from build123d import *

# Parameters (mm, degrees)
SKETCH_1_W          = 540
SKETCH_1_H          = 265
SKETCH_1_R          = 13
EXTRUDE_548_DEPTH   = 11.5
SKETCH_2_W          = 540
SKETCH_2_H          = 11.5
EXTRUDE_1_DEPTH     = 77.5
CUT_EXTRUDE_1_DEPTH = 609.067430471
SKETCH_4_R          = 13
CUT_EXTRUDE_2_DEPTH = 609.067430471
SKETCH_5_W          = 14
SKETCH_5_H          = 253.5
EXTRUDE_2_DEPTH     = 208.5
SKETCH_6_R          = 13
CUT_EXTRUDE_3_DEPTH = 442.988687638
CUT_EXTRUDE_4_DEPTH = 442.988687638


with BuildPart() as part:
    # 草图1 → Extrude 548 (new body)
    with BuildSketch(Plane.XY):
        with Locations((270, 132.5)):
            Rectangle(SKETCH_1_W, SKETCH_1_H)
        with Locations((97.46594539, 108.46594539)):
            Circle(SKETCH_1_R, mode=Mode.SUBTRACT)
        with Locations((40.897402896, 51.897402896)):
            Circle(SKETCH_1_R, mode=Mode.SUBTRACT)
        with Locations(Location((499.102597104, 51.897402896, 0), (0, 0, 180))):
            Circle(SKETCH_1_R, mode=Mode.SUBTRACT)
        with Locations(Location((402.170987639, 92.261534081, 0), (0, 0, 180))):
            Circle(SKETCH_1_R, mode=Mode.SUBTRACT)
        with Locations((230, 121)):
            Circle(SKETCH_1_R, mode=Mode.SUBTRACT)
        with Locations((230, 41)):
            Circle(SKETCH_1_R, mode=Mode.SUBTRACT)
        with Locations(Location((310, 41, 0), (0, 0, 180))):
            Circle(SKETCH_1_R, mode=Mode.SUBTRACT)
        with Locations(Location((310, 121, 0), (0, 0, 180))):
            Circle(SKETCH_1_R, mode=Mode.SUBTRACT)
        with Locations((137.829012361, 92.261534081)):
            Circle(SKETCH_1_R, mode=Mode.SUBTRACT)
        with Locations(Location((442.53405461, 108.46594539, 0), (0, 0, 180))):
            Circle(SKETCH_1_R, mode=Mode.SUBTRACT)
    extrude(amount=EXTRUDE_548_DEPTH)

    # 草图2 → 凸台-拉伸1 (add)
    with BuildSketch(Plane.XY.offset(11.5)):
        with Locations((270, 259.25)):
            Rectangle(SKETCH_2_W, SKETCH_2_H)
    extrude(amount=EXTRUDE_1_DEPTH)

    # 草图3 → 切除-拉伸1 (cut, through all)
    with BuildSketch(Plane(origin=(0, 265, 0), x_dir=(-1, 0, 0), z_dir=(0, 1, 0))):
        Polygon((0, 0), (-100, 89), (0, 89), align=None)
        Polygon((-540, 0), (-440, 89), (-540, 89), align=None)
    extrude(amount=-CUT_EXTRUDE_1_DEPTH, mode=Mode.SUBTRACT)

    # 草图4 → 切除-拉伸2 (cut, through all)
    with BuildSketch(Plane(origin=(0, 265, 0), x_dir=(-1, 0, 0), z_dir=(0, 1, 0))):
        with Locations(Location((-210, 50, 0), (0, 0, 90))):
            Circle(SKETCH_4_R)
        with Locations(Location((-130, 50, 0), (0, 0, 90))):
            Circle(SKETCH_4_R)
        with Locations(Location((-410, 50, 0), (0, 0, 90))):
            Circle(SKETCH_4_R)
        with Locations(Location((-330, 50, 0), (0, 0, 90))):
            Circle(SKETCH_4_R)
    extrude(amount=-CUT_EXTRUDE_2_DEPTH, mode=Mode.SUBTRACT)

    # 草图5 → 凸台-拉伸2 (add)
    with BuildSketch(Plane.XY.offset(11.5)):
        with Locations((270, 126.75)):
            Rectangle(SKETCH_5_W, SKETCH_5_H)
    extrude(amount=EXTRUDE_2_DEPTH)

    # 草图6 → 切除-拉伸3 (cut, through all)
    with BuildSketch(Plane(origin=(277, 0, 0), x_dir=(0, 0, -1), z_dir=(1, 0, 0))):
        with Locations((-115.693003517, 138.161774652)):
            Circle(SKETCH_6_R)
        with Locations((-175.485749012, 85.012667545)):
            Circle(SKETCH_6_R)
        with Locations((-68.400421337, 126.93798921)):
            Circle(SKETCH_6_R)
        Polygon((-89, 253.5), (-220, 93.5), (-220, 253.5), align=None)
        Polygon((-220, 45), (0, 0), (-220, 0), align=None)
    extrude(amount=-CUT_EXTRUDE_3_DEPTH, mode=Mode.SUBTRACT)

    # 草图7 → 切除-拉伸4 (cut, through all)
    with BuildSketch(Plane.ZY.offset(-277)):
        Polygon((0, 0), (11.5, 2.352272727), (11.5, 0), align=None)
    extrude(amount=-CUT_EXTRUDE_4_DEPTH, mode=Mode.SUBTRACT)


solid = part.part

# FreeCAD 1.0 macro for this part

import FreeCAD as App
import Part
import Sketcher
from FreeCAD import Vector

doc = App.newDocument("Part")
body = doc.addObject("PartDesign::Body", "Body")

# Sketch on XY plane
sketch1 = body.newObject("Sketcher::SketchObject", "Sketch")
sketch1.AttachmentSupport = (doc.getObject("XY_Plane"), [""])
sketch1.MapMode = "FlatFace"
sketch1.addGeometry(Part.LineSegment(Vector(0, 265, 0), Vector(0, 0, 0)), False)
sketch1.addGeometry(Part.LineSegment(Vector(0, 0, 0), Vector(540, 0, 0)), False)
sketch1.addGeometry(Part.LineSegment(Vector(540, 0, 0), Vector(540, 265, 0)), False)
sketch1.addGeometry(Part.LineSegment(Vector(540, 265, 0), Vector(0, 265, 0)), False)
sketch1.addGeometry(Part.Circle(Vector(40.897403, 51.897403, 0), Vector(0, 0, 1), 13), False)
sketch1.addGeometry(Part.Circle(Vector(230, 41, 0), Vector(0, 0, 1), 13), False)
sketch1.addGeometry(Part.Circle(Vector(310, 41, 0), Vector(0, 0, 1), 13), False)
sketch1.addGeometry(Part.Circle(Vector(499.102597, 51.897403, 0), Vector(0, 0, 1), 13), False)
sketch1.addGeometry(Part.Circle(Vector(137.829012, 92.261534, 0), Vector(0, 0, 1), 13), False)
sketch1.addGeometry(Part.Circle(Vector(97.465945, 108.465945, 0), Vector(0, 0, 1), 13), False)
sketch1.addGeometry(Part.Circle(Vector(230, 121, 0), Vector(0, 0, 1), 13), False)
sketch1.addGeometry(Part.Circle(Vector(402.170988, 92.261534, 0), Vector(0, 0, 1), 13), False)
sketch1.addGeometry(Part.Circle(Vector(310, 121, 0), Vector(0, 0, 1), 13), False)
sketch1.addGeometry(Part.Circle(Vector(442.534055, 108.465945, 0), Vector(0, 0, 1), 13), False)
sketch1.addConstraint(Sketcher.Constraint("Coincident", 0, 2, 1, 1))
sketch1.addConstraint(Sketcher.Constraint("Coincident", 1, 2, 2, 1))
sketch1.addConstraint(Sketcher.Constraint("Coincident", 2, 2, 3, 1))
sketch1.addConstraint(Sketcher.Constraint("Coincident", 3, 2, 0, 1))
sketch1.addConstraint(Sketcher.Constraint("Vertical", 0))
sketch1.addConstraint(Sketcher.Constraint("Horizontal", 1))
sketch1.addConstraint(Sketcher.Constraint("Vertical", 2))
sketch1.addConstraint(Sketcher.Constraint("Horizontal", 3))
sketch1.addConstraint(Sketcher.Constraint("Coincident", 0, 2, -1, 1))
sketch1.addConstraint(Sketcher.Constraint("Equal", 4, 5))
sketch1.addConstraint(Sketcher.Constraint("Equal", 5, 6))
sketch1.addConstraint(Sketcher.Constraint("Equal", 6, 7))
sketch1.addConstraint(Sketcher.Constraint("Equal", 7, 8))
sketch1.addConstraint(Sketcher.Constraint("Equal", 8, 9))
sketch1.addConstraint(Sketcher.Constraint("Equal", 9, 10))
sketch1.addConstraint(Sketcher.Constraint("Equal", 10, 11))
sketch1.addConstraint(Sketcher.Constraint("Equal", 11, 12))
sketch1.addConstraint(Sketcher.Constraint("Equal", 12, 13))
sketch1.addConstraint(Sketcher.Constraint("Horizontal", 5, 3, 6, 3))
sketch1.addConstraint(Sketcher.Constraint("Horizontal", 4, 3, 7, 3))
sketch1.addConstraint(Sketcher.Constraint("Horizontal", 8, 3, 11, 3))
sketch1.addConstraint(Sketcher.Constraint("Horizontal", 10, 3, 12, 3))
sketch1.addConstraint(Sketcher.Constraint("Horizontal", 9, 3, 13, 3))
sketch1.addConstraint(Sketcher.Constraint("Vertical", 5, 3, 10, 3))
sketch1.addConstraint(Sketcher.Constraint("Vertical", 6, 3, 12, 3))
sketch1.addConstraint(Sketcher.Constraint("Diameter", 4, 26.0))
sketch1.addConstraint(Sketcher.Constraint("DistanceX", 1, 1, 1, 2, 540.0))
sketch1.addConstraint(Sketcher.Constraint("DistanceY", 0, 2, 0, 1, 265.0))
sketch1.addConstraint(Sketcher.Constraint("DistanceX", -1, 1, 5, 3, 230.0))
sketch1.addConstraint(Sketcher.Constraint("DistanceY", -1, 1, 5, 3, 41.0))
sketch1.addConstraint(Sketcher.Constraint("DistanceX", -1, 1, 6, 3, 310.0))
sketch1.addConstraint(Sketcher.Constraint("DistanceY", -1, 1, 10, 3, 121.0))
sketch1.addConstraint(Sketcher.Constraint("DistanceX", 4, 3, 8, 3, 96.931609))
sketch1.addConstraint(Sketcher.Constraint("DistanceY", 4, 3, 8, 3, 40.364131))
sketch1.addConstraint(Sketcher.Constraint("DistanceY", 8, 3, 9, 3, 16.204411))
sketch1.addConstraint(Sketcher.Constraint("DistanceX", 9, 3, 7, 3, 401.636652))
sketch1.addConstraint(Sketcher.Constraint("DistanceX", 11, 3, 7, 3, 96.931609))
sketch1.addConstraint(Sketcher.Constraint("DistanceX", -1, 1, 4, 3, 40.897403))
sketch1.addConstraint(Sketcher.Constraint("DistanceY", -1, 1, 4, 3, 51.897403))
sketch1.addConstraint(Sketcher.Constraint("DistanceX", -1, 1, 7, 3, 499.102597))
sketch1.addConstraint(Sketcher.Constraint("DistanceX", -1, 1, 13, 3, 442.534055))
pad1 = body.newObject("PartDesign::Pad", "Pad")
pad1.Profile = sketch1
pad1.Length = 11.5

# Sketch on XY plane
sketch2 = body.newObject("Sketcher::SketchObject", "Sketch001")
sketch2.AttachmentSupport = (doc.getObject("XY_Plane"), [""])
sketch2.MapMode = "FlatFace"
sketch2.AttachmentOffset = App.Placement(Vector(0, 0, 11.5), App.Rotation())
sketch2.addGeometry(Part.LineSegment(Vector(0, 265, 0), Vector(0, 253.5, 0)), False)
sketch2.addGeometry(Part.LineSegment(Vector(0, 253.5, 0), Vector(540, 253.5, 0)), False)
sketch2.addGeometry(Part.LineSegment(Vector(540, 253.5, 0), Vector(540, 265, 0)), False)
sketch2.addGeometry(Part.LineSegment(Vector(540, 265, 0), Vector(0, 265, 0)), False)
sketch2.addConstraint(Sketcher.Constraint("Coincident", 0, 2, 1, 1))
sketch2.addConstraint(Sketcher.Constraint("Coincident", 1, 2, 2, 1))
sketch2.addConstraint(Sketcher.Constraint("Coincident", 2, 2, 3, 1))
sketch2.addConstraint(Sketcher.Constraint("Coincident", 3, 2, 0, 1))
sketch2.addConstraint(Sketcher.Constraint("Vertical", 0))
sketch2.addConstraint(Sketcher.Constraint("Horizontal", 1))
sketch2.addConstraint(Sketcher.Constraint("Vertical", 2))
sketch2.addConstraint(Sketcher.Constraint("Horizontal", 3))
sketch2.addConstraint(Sketcher.Constraint("PointOnObject", 0, 2, -2))
sketch2.addConstraint(Sketcher.Constraint("DistanceX", 1, 1, 1, 2, 540.0))
sketch2.addConstraint(Sketcher.Constraint("DistanceY", 0, 2, 0, 1, 11.5))
sketch2.addConstraint(Sketcher.Constraint("DistanceY", -1, 1, 2, 2, 265.0))
pad2 = body.newObject("PartDesign::Pad", "Pad001")
pad2.Profile = sketch2
pad2.Length = 77.5

# Sketch on XZ plane
sketch3 = body.newObject("Sketcher::SketchObject", "Sketch002")
sketch3.AttachmentSupport = (doc.getObject("XZ_Plane"), [""])
sketch3.MapMode = "FlatFace"
sketch3.AttachmentOffset = App.Placement(Vector(0, 0, -265), App.Rotation())
sketch3.addGeometry(Part.LineSegment(Vector(100, 89, 0), Vector(0, 0, 0)), False)
sketch3.addGeometry(Part.LineSegment(Vector(0, 0, 0), Vector(0, 89, 0)), False)
sketch3.addGeometry(Part.LineSegment(Vector(0, 89, 0), Vector(100, 89, 0)), False)
sketch3.addGeometry(Part.LineSegment(Vector(540, 0, 0), Vector(440, 89, 0)), False)
sketch3.addGeometry(Part.LineSegment(Vector(440, 89, 0), Vector(540, 89, 0)), False)
sketch3.addGeometry(Part.LineSegment(Vector(540, 89, 0), Vector(540, 0, 0)), False)
sketch3.addConstraint(Sketcher.Constraint("Coincident", 0, 2, 1, 1))
sketch3.addConstraint(Sketcher.Constraint("Coincident", 1, 2, 2, 1))
sketch3.addConstraint(Sketcher.Constraint("Coincident", 2, 2, 0, 1))
sketch3.addConstraint(Sketcher.Constraint("Coincident", 3, 2, 4, 1))
sketch3.addConstraint(Sketcher.Constraint("Coincident", 4, 2, 5, 1))
sketch3.addConstraint(Sketcher.Constraint("Coincident", 5, 2, 3, 1))
sketch3.addConstraint(Sketcher.Constraint("Vertical", 1))
sketch3.addConstraint(Sketcher.Constraint("Horizontal", 2))
sketch3.addConstraint(Sketcher.Constraint("Horizontal", 4))
sketch3.addConstraint(Sketcher.Constraint("Vertical", 5))
sketch3.addConstraint(Sketcher.Constraint("Coincident", 0, 2, -1, 1))
sketch3.addConstraint(Sketcher.Constraint("PointOnObject", 5, 2, -1))
sketch3.addConstraint(Sketcher.Constraint("Horizontal", 2, 2, 3, 2))
sketch3.addConstraint(Sketcher.Constraint("Equal", 2, 4))
sketch3.addConstraint(Sketcher.Constraint("DistanceX", 2, 1, 2, 2, 100.0))
sketch3.addConstraint(Sketcher.Constraint("DistanceY", 1, 1, 1, 2, 89.0))
sketch3.addConstraint(Sketcher.Constraint("DistanceX", -1, 1, 3, 2, 440.0))
pocket1 = body.newObject("PartDesign::Pocket", "Pocket")
pocket1.Profile = sketch3
pocket1.Type = "ThroughAll"
pocket1.Reversed = True

# Sketch on XZ plane
sketch4 = body.newObject("Sketcher::SketchObject", "Sketch003")
sketch4.AttachmentSupport = (doc.getObject("XZ_Plane"), [""])
sketch4.MapMode = "FlatFace"
sketch4.AttachmentOffset = App.Placement(Vector(0, 0, -265), App.Rotation())
sketch4.addGeometry(Part.Circle(Vector(210, 50, 0), Vector(0, 0, 1), 13), False)
sketch4.addGeometry(Part.Circle(Vector(130, 50, 0), Vector(0, 0, 1), 13), False)
sketch4.addGeometry(Part.Circle(Vector(410, 50, 0), Vector(0, 0, 1), 13), False)
sketch4.addGeometry(Part.Circle(Vector(330, 50, 0), Vector(0, 0, 1), 13), False)
sketch4.addConstraint(Sketcher.Constraint("Equal", 0, 1))
sketch4.addConstraint(Sketcher.Constraint("Equal", 1, 2))
sketch4.addConstraint(Sketcher.Constraint("Equal", 2, 3))
sketch4.addConstraint(Sketcher.Constraint("Horizontal", 0, 3, 1, 3))
sketch4.addConstraint(Sketcher.Constraint("Horizontal", 1, 3, 2, 3))
sketch4.addConstraint(Sketcher.Constraint("Horizontal", 2, 3, 3, 3))
sketch4.addConstraint(Sketcher.Constraint("Diameter", 0, 26.0))
sketch4.addConstraint(Sketcher.Constraint("DistanceX", -1, 1, 0, 3, 210.0))
sketch4.addConstraint(Sketcher.Constraint("DistanceY", -1, 1, 0, 3, 50.0))
sketch4.addConstraint(Sketcher.Constraint("DistanceX", -1, 1, 1, 3, 130.0))
sketch4.addConstraint(Sketcher.Constraint("DistanceX", -1, 1, 2, 3, 410.0))
sketch4.addConstraint(Sketcher.Constraint("DistanceX", -1, 1, 3, 3, 330.0))
pocket2 = body.newObject("PartDesign::Pocket", "Pocket001")
pocket2.Profile = sketch4
pocket2.Type = "ThroughAll"
pocket2.Reversed = True

# Sketch on XY plane
sketch5 = body.newObject("Sketcher::SketchObject", "Sketch004")
sketch5.AttachmentSupport = (doc.getObject("XY_Plane"), [""])
sketch5.MapMode = "FlatFace"
sketch5.AttachmentOffset = App.Placement(Vector(0, 0, 11.5), App.Rotation())
sketch5.addGeometry(Part.LineSegment(Vector(263, 253.5, 0), Vector(263, 0, 0)), False)
sketch5.addGeometry(Part.LineSegment(Vector(263, 0, 0), Vector(277, 0, 0)), False)
sketch5.addGeometry(Part.LineSegment(Vector(277, 0, 0), Vector(277, 253.5, 0)), False)
sketch5.addGeometry(Part.LineSegment(Vector(277, 253.5, 0), Vector(263, 253.5, 0)), False)
sketch5.addConstraint(Sketcher.Constraint("Coincident", 0, 2, 1, 1))
sketch5.addConstraint(Sketcher.Constraint("Coincident", 1, 2, 2, 1))
sketch5.addConstraint(Sketcher.Constraint("Coincident", 2, 2, 3, 1))
sketch5.addConstraint(Sketcher.Constraint("Coincident", 3, 2, 0, 1))
sketch5.addConstraint(Sketcher.Constraint("Vertical", 0))
sketch5.addConstraint(Sketcher.Constraint("Horizontal", 1))
sketch5.addConstraint(Sketcher.Constraint("Vertical", 2))
sketch5.addConstraint(Sketcher.Constraint("Horizontal", 3))
sketch5.addConstraint(Sketcher.Constraint("PointOnObject", 0, 2, -1))
sketch5.addConstraint(Sketcher.Constraint("DistanceX", 1, 1, 1, 2, 14.0))
sketch5.addConstraint(Sketcher.Constraint("DistanceY", 0, 2, 0, 1, 253.5))
sketch5.addConstraint(Sketcher.Constraint("DistanceX", -1, 1, 0, 2, 263.0))
pad3 = body.newObject("PartDesign::Pad", "Pad002")
pad3.Profile = sketch5
pad3.Length = 208.5

# Sketch on YZ plane
sketch6 = body.newObject("Sketcher::SketchObject", "Sketch005")
sketch6.AttachmentSupport = (doc.getObject("YZ_Plane"), [""])
sketch6.MapMode = "FlatFace"
sketch6.AttachmentOffset = App.Placement(Vector(0, 0, 277), App.Rotation())
sketch6.addGeometry(Part.Circle(Vector(138.161775, 115.693004, 0), Vector(0, 0, 1), 13), False)
sketch6.addGeometry(Part.Circle(Vector(85.012668, 175.485749, 0), Vector(0, 0, 1), 13), False)
sketch6.addGeometry(Part.Circle(Vector(126.937989, 68.400421, 0), Vector(0, 0, 1), 13), False)
sketch6.addGeometry(Part.LineSegment(Vector(93.5, 220, 0), Vector(253.5, 89, 0)), False)
sketch6.addGeometry(Part.LineSegment(Vector(253.5, 89, 0), Vector(253.5, 220, 0)), False)
sketch6.addGeometry(Part.LineSegment(Vector(253.5, 220, 0), Vector(93.5, 220, 0)), False)
sketch6.addGeometry(Part.LineSegment(Vector(0, 0, 0), Vector(45, 220, 0)), False)
sketch6.addGeometry(Part.LineSegment(Vector(45, 220, 0), Vector(0, 220, 0)), False)
sketch6.addGeometry(Part.LineSegment(Vector(0, 220, 0), Vector(0, 0, 0)), False)
sketch6.addConstraint(Sketcher.Constraint("Coincident", 3, 2, 4, 1))
sketch6.addConstraint(Sketcher.Constraint("Coincident", 4, 2, 5, 1))
sketch6.addConstraint(Sketcher.Constraint("Coincident", 5, 2, 3, 1))
sketch6.addConstraint(Sketcher.Constraint("Coincident", 6, 2, 7, 1))
sketch6.addConstraint(Sketcher.Constraint("Coincident", 7, 2, 8, 1))
sketch6.addConstraint(Sketcher.Constraint("Coincident", 8, 2, 6, 1))
sketch6.addConstraint(Sketcher.Constraint("Vertical", 4))
sketch6.addConstraint(Sketcher.Constraint("Horizontal", 5))
sketch6.addConstraint(Sketcher.Constraint("Horizontal", 7))
sketch6.addConstraint(Sketcher.Constraint("Vertical", 8))
sketch6.addConstraint(Sketcher.Constraint("Coincident", 8, 2, -1, 1))
sketch6.addConstraint(Sketcher.Constraint("Equal", 0, 1))
sketch6.addConstraint(Sketcher.Constraint("Equal", 1, 2))
sketch6.addConstraint(Sketcher.Constraint("Horizontal", 5, 2, 6, 2))
sketch6.addConstraint(Sketcher.Constraint("Diameter", 0, 26.0))
sketch6.addConstraint(Sketcher.Constraint("DistanceX", 5, 2, 5, 1, 160.0))
sketch6.addConstraint(Sketcher.Constraint("DistanceX", 7, 2, 7, 1, 45.0))
sketch6.addConstraint(Sketcher.Constraint("DistanceY", 4, 1, 4, 2, 131.0))
sketch6.addConstraint(Sketcher.Constraint("DistanceY", 8, 2, 8, 1, 220.0))
sketch6.addConstraint(Sketcher.Constraint("DistanceX", -1, 1, 3, 2, 253.5))
sketch6.addConstraint(Sketcher.Constraint("DistanceY", -1, 1, 1, 3, 175.485749))
sketch6.addConstraint(Sketcher.Constraint("DistanceX", -1, 1, 2, 3, 126.937989))
sketch6.addConstraint(Sketcher.Constraint("DistanceY", -1, 1, 2, 3, 68.400421))
sketch6.addConstraint(Sketcher.Constraint("DistanceX", 1, 3, 2, 3, 41.925322))
sketch6.addConstraint(Sketcher.Constraint("DistanceX", -1, 1, 0, 3, 138.161775))
sketch6.addConstraint(Sketcher.Constraint("DistanceY", -1, 1, 0, 3, 115.693004))
pocket3 = body.newObject("PartDesign::Pocket", "Pocket002")
pocket3.Profile = sketch6
pocket3.Type = "ThroughAll"

# Sketch on YZ plane
sketch7 = body.newObject("Sketcher::SketchObject", "Sketch006")
sketch7.AttachmentSupport = (doc.getObject("YZ_Plane"), [""])
sketch7.MapMode = "FlatFace"
sketch7.AttachmentOffset = App.Placement(Vector(0, 0, 277), App.Rotation())
sketch7.addGeometry(Part.LineSegment(Vector(2.352273, 11.5, 0), Vector(0, 0, 0)), False)
sketch7.addGeometry(Part.LineSegment(Vector(0, 0, 0), Vector(0, 11.5, 0)), False)
sketch7.addGeometry(Part.LineSegment(Vector(0, 11.5, 0), Vector(2.352273, 11.5, 0)), False)
sketch7.addConstraint(Sketcher.Constraint("Coincident", 0, 2, 1, 1))
sketch7.addConstraint(Sketcher.Constraint("Coincident", 1, 2, 2, 1))
sketch7.addConstraint(Sketcher.Constraint("Coincident", 2, 2, 0, 1))
sketch7.addConstraint(Sketcher.Constraint("Vertical", 1))
sketch7.addConstraint(Sketcher.Constraint("Horizontal", 2))
sketch7.addConstraint(Sketcher.Constraint("Coincident", 0, 2, -1, 1))
sketch7.addConstraint(Sketcher.Constraint("DistanceY", 1, 1, 1, 2, 11.5))
sketch7.addConstraint(Sketcher.Constraint("Distance", 0, 11.738108))
pocket4 = body.newObject("PartDesign::Pocket", "Pocket003")
pocket4.Profile = sketch7
pocket4.Type = "ThroughAll"
pocket4.Reversed = True

doc.recompute()
